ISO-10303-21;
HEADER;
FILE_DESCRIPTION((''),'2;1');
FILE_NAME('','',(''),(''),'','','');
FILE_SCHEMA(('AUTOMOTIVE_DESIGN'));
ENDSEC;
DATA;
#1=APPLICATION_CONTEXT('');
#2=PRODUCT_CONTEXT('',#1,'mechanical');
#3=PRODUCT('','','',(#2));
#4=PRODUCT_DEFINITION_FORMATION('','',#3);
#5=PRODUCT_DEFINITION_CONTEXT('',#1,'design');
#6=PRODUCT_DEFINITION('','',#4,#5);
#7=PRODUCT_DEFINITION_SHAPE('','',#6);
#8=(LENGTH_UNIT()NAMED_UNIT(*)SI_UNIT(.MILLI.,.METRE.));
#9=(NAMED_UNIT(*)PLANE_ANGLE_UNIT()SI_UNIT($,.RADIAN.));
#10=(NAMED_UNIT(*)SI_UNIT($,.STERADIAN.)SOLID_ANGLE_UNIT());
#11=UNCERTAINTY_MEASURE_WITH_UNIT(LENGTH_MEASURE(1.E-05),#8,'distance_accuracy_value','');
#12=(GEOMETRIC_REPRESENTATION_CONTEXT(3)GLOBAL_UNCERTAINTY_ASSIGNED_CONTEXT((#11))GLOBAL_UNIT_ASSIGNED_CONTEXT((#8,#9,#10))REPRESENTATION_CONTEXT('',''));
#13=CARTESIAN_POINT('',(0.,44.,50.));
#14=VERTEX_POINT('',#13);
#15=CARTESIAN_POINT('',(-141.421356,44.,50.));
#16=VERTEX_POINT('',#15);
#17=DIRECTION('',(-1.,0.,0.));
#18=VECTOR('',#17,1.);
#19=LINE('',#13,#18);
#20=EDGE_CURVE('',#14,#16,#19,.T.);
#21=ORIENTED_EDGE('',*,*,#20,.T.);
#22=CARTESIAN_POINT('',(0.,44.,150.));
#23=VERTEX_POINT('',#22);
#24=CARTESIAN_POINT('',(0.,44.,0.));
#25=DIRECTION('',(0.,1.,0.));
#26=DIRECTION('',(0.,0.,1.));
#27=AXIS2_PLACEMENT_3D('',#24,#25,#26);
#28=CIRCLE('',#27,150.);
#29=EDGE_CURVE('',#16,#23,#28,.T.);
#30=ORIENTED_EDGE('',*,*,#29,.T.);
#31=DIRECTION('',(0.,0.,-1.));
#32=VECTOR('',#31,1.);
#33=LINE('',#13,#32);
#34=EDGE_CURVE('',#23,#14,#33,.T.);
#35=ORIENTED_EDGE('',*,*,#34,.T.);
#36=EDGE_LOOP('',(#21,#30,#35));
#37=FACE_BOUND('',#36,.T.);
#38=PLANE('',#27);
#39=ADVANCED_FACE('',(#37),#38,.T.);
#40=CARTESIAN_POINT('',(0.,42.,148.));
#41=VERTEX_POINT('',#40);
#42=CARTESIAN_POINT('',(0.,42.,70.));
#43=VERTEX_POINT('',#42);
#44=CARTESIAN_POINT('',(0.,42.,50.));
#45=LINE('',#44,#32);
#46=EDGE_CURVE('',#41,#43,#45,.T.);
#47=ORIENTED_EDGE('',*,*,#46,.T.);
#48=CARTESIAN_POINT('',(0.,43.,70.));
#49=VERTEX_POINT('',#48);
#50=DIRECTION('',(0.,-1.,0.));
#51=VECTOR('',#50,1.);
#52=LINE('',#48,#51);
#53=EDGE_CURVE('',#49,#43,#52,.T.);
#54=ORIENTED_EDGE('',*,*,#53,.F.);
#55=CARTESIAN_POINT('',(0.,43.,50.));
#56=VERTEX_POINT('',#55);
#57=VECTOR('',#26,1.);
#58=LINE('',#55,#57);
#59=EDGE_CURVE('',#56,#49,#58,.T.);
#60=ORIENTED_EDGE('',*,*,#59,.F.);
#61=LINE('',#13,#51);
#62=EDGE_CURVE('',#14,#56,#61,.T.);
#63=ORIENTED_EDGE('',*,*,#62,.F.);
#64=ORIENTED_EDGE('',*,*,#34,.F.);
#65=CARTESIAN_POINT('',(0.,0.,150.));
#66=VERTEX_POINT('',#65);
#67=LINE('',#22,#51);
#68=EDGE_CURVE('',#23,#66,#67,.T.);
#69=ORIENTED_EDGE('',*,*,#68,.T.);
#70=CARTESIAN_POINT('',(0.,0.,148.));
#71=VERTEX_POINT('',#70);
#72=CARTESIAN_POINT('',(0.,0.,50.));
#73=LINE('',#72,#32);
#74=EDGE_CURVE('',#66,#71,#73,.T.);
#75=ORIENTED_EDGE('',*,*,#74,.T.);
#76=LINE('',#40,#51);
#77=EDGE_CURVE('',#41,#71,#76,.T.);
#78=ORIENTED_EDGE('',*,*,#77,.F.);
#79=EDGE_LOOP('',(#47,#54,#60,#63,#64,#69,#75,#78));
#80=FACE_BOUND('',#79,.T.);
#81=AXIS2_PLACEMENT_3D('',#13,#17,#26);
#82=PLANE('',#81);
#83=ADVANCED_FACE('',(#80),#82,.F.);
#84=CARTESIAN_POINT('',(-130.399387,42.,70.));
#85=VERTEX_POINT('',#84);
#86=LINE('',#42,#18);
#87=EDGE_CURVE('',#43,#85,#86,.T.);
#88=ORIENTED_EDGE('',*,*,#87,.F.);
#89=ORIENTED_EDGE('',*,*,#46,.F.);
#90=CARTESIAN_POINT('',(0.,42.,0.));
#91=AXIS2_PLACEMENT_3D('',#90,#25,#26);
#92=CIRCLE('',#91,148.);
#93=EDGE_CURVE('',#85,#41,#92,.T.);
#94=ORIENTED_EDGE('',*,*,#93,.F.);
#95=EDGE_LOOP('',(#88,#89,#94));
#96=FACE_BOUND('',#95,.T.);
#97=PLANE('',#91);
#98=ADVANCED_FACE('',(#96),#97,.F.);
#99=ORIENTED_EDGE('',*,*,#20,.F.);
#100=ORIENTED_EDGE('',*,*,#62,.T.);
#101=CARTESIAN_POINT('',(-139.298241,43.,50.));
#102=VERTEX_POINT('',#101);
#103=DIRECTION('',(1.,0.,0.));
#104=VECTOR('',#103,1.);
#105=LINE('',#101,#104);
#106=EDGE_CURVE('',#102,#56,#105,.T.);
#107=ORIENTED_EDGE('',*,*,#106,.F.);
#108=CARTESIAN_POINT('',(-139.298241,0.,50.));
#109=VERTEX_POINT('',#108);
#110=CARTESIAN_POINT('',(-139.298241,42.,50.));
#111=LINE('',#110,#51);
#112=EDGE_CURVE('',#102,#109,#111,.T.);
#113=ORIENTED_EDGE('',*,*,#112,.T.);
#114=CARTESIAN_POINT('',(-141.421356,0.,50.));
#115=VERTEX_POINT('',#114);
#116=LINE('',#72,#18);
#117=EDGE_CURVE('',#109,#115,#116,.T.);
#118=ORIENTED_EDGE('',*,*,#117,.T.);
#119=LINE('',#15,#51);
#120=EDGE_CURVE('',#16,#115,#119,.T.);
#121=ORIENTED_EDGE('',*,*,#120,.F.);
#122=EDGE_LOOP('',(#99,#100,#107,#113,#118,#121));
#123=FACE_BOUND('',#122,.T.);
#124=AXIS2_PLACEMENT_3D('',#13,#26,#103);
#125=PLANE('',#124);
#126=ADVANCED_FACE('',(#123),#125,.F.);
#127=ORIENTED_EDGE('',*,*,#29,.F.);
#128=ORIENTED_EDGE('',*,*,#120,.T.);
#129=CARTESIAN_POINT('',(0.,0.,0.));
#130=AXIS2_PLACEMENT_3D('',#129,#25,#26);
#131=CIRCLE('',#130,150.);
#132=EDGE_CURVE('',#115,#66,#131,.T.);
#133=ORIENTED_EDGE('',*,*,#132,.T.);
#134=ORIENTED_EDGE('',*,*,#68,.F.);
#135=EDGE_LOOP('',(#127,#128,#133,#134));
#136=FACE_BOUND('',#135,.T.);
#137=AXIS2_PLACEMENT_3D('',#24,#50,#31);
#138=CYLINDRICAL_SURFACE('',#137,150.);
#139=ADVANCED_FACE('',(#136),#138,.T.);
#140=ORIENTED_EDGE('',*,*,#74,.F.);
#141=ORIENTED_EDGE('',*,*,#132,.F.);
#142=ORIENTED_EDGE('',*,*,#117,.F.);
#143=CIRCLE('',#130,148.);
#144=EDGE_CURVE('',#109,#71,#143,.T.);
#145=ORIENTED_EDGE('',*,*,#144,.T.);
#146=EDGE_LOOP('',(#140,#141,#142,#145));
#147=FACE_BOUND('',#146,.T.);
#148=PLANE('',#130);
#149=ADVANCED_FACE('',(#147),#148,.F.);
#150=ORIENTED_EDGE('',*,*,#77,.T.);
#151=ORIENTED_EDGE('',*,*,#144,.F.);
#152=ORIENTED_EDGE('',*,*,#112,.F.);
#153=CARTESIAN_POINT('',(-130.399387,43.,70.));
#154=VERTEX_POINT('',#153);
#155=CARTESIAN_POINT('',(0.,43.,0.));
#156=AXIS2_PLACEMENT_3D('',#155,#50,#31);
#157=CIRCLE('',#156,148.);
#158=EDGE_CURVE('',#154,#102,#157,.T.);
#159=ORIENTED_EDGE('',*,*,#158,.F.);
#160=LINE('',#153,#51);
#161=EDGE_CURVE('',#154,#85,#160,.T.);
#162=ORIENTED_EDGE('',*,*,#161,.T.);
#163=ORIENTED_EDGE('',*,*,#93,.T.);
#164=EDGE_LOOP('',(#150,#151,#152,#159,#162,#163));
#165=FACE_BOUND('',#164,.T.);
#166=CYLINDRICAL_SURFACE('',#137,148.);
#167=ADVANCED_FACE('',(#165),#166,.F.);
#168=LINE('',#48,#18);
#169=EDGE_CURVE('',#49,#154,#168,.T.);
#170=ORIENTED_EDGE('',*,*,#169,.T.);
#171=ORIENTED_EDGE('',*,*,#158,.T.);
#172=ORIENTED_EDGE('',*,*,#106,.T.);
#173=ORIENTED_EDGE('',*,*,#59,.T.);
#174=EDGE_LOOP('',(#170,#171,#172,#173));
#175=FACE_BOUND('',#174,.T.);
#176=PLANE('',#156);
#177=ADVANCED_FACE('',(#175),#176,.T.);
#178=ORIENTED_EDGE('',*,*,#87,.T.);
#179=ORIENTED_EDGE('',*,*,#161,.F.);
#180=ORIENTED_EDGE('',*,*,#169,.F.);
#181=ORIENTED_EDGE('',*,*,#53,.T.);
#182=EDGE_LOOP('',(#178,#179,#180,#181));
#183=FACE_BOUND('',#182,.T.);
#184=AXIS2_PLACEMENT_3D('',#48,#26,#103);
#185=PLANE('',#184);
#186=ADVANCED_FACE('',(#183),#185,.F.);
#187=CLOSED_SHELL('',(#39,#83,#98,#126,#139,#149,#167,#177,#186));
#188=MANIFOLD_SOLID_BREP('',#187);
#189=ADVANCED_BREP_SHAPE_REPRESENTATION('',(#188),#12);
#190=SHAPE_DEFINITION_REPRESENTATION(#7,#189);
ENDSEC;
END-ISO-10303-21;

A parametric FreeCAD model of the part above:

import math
import FreeCAD as App
import Part
import Sketcher


def faces_at(feature, points):
    """Names of the faces that lie closest to the given points."""
    faces = feature.Shape.Faces
    near = lambda p: min(range(len(faces)), key=lambda i: faces[i].distToShape(Part.Vertex(*p))[0])
    return sorted({f"Face{near(p) + 1}" for p in points})

doc = App.newDocument("Part")
params = doc.addObject("Spreadsheet::Sheet", "Params")
for row, (alias, value) in enumerate([
    ("sketch1_radius", "150 mm"),
    ("sketch1_height", "100 mm"),
    ("pad1_length", "44 mm"),
    ("thickness_wall", "2 mm"),
    ("sketch2_radius", "148 mm"),
    ("sketch2_height", "20 mm"),
    ("pocket1_length", "1 mm"),
], start=1):
    params.set(f"A{row}", alias)
    params.set(f"B{row}", "=" + value)
    params.setAlias(f"B{row}", alias)

body = doc.addObject("PartDesign::Body", "Body")

sketch1 = body.newObject("Sketcher::SketchObject", "Sketch")
sketch1.AttachmentSupport = (doc.getObject("XZ_Plane"), [""])
sketch1.MapMode = "FlatFace"
sketch1.addGeometry(Part.LineSegment(App.Vector(0, 150, 0), App.Vector(0, 50, 0)), False)
sketch1.addGeometry(Part.LineSegment(App.Vector(0, 50, 0), App.Vector(-141, 50, 0)), False)
sketch1.addGeometry(Part.ArcOfCircle(Part.Circle(App.Vector(0, 0, 0), App.Vector(0, 0, 1), 150), math.radians(90), math.radians(161)), False)
sketch1.addConstraint(Sketcher.Constraint("Coincident", 0, 2, 1, 1))
sketch1.addConstraint(Sketcher.Constraint("Coincident", 1, 2, 2, 2))
sketch1.addConstraint(Sketcher.Constraint("Coincident", 2, 1, 0, 1))
sketch1.addConstraint(Sketcher.Constraint("Vertical", 0))
sketch1.addConstraint(Sketcher.Constraint("Horizontal", 1))
sketch1.addConstraint(Sketcher.Constraint("Coincident", 2, 3, -1, 1))
sketch1.addConstraint(Sketcher.Constraint("PointOnObject", 0, 2, -2))
sketch1.addConstraint(Sketcher.Constraint("Radius", 2, 150.0))
sketch1.addConstraint(Sketcher.Constraint("DistanceY", 0, 2, 0, 1, 100.0))
sketch1.setExpression("Constraints[7]", "Params.sketch1_radius")
sketch1.setExpression("Constraints[8]", "Params.sketch1_height")
pad1 = body.newObject("PartDesign::Pad", "Pad")
pad1.Profile = sketch1
pad1.setExpression("Length", "Params.pad1_length")
pad1.Reversed = True
doc.recompute()

thickness = body.newObject("PartDesign::Thickness", "Thickness")
thickness.Base = (pad1, faces_at(pad1, [(-70.711, 0, 100), (-70.711, 22, 50), (0, 22, 100)]))
thickness.setExpression("Value", "Params.thickness_wall")
thickness.Reversed = True
thickness.Join = "Intersection"

sketch2 = body.newObject("Sketcher::SketchObject", "Sketch001")
sketch2.AttachmentSupport = (doc.getObject("XZ_Plane"), [""])
sketch2.MapMode = "FlatFace"
sketch2.AttachmentOffset = App.Placement(App.Vector(0, 0, -42), App.Rotation())
sketch2.addGeometry(Part.LineSegment(App.Vector(-139, 50, 0), App.Vector(0, 50, 0)), False)
sketch2.addGeometry(Part.LineSegment(App.Vector(0, 50, 0), App.Vector(0, 70, 0)), False)
sketch2.addGeometry(Part.LineSegment(App.Vector(0, 70, 0), App.Vector(-130, 70, 0)), False)
sketch2.addGeometry(Part.ArcOfCircle(Part.Circle(App.Vector(0, 0, 0), App.Vector(0, 0, 1), 148), math.radians(151.77), math.radians(160.25)), False)
sketch2.addConstraint(Sketcher.Constraint("Coincident", 0, 2, 1, 1))
sketch2.addConstraint(Sketcher.Constraint("Coincident", 1, 2, 2, 1))
sketch2.addConstraint(Sketcher.Constraint("Coincident", 2, 2, 3, 1))
sketch2.addConstraint(Sketcher.Constraint("Coincident", 3, 2, 0, 1))
sketch2.addConstraint(Sketcher.Constraint("Horizontal", 0))
sketch2.addConstraint(Sketcher.Constraint("Vertical", 1))
sketch2.addConstraint(Sketcher.Constraint("Horizontal", 2))
sketch2.addConstraint(Sketcher.Constraint("Coincident", 3, 3, -1, 1))
sketch2.addConstraint(Sketcher.Constraint("PointOnObject", 0, 2, -2))
sketch2.addConstraint(Sketcher.Constraint("Radius", 3, 148.0))
sketch2.addConstraint(Sketcher.Constraint("DistanceY", 1, 1, 1, 2, 20.0))
sketch2.addConstraint(Sketcher.Constraint("DistanceY", -1, 1, 0, 2, 50.0))
sketch2.setExpression("Constraints[9]", "Params.sketch2_radius")
sketch2.setExpression("Constraints[10]", "Params.sketch2_height")
pocket1 = body.newObject("PartDesign::Pocket", "Pocket")
pocket1.Profile = sketch2
pocket1.setExpression("Length", "Params.pocket1_length")

doc.recompute()
